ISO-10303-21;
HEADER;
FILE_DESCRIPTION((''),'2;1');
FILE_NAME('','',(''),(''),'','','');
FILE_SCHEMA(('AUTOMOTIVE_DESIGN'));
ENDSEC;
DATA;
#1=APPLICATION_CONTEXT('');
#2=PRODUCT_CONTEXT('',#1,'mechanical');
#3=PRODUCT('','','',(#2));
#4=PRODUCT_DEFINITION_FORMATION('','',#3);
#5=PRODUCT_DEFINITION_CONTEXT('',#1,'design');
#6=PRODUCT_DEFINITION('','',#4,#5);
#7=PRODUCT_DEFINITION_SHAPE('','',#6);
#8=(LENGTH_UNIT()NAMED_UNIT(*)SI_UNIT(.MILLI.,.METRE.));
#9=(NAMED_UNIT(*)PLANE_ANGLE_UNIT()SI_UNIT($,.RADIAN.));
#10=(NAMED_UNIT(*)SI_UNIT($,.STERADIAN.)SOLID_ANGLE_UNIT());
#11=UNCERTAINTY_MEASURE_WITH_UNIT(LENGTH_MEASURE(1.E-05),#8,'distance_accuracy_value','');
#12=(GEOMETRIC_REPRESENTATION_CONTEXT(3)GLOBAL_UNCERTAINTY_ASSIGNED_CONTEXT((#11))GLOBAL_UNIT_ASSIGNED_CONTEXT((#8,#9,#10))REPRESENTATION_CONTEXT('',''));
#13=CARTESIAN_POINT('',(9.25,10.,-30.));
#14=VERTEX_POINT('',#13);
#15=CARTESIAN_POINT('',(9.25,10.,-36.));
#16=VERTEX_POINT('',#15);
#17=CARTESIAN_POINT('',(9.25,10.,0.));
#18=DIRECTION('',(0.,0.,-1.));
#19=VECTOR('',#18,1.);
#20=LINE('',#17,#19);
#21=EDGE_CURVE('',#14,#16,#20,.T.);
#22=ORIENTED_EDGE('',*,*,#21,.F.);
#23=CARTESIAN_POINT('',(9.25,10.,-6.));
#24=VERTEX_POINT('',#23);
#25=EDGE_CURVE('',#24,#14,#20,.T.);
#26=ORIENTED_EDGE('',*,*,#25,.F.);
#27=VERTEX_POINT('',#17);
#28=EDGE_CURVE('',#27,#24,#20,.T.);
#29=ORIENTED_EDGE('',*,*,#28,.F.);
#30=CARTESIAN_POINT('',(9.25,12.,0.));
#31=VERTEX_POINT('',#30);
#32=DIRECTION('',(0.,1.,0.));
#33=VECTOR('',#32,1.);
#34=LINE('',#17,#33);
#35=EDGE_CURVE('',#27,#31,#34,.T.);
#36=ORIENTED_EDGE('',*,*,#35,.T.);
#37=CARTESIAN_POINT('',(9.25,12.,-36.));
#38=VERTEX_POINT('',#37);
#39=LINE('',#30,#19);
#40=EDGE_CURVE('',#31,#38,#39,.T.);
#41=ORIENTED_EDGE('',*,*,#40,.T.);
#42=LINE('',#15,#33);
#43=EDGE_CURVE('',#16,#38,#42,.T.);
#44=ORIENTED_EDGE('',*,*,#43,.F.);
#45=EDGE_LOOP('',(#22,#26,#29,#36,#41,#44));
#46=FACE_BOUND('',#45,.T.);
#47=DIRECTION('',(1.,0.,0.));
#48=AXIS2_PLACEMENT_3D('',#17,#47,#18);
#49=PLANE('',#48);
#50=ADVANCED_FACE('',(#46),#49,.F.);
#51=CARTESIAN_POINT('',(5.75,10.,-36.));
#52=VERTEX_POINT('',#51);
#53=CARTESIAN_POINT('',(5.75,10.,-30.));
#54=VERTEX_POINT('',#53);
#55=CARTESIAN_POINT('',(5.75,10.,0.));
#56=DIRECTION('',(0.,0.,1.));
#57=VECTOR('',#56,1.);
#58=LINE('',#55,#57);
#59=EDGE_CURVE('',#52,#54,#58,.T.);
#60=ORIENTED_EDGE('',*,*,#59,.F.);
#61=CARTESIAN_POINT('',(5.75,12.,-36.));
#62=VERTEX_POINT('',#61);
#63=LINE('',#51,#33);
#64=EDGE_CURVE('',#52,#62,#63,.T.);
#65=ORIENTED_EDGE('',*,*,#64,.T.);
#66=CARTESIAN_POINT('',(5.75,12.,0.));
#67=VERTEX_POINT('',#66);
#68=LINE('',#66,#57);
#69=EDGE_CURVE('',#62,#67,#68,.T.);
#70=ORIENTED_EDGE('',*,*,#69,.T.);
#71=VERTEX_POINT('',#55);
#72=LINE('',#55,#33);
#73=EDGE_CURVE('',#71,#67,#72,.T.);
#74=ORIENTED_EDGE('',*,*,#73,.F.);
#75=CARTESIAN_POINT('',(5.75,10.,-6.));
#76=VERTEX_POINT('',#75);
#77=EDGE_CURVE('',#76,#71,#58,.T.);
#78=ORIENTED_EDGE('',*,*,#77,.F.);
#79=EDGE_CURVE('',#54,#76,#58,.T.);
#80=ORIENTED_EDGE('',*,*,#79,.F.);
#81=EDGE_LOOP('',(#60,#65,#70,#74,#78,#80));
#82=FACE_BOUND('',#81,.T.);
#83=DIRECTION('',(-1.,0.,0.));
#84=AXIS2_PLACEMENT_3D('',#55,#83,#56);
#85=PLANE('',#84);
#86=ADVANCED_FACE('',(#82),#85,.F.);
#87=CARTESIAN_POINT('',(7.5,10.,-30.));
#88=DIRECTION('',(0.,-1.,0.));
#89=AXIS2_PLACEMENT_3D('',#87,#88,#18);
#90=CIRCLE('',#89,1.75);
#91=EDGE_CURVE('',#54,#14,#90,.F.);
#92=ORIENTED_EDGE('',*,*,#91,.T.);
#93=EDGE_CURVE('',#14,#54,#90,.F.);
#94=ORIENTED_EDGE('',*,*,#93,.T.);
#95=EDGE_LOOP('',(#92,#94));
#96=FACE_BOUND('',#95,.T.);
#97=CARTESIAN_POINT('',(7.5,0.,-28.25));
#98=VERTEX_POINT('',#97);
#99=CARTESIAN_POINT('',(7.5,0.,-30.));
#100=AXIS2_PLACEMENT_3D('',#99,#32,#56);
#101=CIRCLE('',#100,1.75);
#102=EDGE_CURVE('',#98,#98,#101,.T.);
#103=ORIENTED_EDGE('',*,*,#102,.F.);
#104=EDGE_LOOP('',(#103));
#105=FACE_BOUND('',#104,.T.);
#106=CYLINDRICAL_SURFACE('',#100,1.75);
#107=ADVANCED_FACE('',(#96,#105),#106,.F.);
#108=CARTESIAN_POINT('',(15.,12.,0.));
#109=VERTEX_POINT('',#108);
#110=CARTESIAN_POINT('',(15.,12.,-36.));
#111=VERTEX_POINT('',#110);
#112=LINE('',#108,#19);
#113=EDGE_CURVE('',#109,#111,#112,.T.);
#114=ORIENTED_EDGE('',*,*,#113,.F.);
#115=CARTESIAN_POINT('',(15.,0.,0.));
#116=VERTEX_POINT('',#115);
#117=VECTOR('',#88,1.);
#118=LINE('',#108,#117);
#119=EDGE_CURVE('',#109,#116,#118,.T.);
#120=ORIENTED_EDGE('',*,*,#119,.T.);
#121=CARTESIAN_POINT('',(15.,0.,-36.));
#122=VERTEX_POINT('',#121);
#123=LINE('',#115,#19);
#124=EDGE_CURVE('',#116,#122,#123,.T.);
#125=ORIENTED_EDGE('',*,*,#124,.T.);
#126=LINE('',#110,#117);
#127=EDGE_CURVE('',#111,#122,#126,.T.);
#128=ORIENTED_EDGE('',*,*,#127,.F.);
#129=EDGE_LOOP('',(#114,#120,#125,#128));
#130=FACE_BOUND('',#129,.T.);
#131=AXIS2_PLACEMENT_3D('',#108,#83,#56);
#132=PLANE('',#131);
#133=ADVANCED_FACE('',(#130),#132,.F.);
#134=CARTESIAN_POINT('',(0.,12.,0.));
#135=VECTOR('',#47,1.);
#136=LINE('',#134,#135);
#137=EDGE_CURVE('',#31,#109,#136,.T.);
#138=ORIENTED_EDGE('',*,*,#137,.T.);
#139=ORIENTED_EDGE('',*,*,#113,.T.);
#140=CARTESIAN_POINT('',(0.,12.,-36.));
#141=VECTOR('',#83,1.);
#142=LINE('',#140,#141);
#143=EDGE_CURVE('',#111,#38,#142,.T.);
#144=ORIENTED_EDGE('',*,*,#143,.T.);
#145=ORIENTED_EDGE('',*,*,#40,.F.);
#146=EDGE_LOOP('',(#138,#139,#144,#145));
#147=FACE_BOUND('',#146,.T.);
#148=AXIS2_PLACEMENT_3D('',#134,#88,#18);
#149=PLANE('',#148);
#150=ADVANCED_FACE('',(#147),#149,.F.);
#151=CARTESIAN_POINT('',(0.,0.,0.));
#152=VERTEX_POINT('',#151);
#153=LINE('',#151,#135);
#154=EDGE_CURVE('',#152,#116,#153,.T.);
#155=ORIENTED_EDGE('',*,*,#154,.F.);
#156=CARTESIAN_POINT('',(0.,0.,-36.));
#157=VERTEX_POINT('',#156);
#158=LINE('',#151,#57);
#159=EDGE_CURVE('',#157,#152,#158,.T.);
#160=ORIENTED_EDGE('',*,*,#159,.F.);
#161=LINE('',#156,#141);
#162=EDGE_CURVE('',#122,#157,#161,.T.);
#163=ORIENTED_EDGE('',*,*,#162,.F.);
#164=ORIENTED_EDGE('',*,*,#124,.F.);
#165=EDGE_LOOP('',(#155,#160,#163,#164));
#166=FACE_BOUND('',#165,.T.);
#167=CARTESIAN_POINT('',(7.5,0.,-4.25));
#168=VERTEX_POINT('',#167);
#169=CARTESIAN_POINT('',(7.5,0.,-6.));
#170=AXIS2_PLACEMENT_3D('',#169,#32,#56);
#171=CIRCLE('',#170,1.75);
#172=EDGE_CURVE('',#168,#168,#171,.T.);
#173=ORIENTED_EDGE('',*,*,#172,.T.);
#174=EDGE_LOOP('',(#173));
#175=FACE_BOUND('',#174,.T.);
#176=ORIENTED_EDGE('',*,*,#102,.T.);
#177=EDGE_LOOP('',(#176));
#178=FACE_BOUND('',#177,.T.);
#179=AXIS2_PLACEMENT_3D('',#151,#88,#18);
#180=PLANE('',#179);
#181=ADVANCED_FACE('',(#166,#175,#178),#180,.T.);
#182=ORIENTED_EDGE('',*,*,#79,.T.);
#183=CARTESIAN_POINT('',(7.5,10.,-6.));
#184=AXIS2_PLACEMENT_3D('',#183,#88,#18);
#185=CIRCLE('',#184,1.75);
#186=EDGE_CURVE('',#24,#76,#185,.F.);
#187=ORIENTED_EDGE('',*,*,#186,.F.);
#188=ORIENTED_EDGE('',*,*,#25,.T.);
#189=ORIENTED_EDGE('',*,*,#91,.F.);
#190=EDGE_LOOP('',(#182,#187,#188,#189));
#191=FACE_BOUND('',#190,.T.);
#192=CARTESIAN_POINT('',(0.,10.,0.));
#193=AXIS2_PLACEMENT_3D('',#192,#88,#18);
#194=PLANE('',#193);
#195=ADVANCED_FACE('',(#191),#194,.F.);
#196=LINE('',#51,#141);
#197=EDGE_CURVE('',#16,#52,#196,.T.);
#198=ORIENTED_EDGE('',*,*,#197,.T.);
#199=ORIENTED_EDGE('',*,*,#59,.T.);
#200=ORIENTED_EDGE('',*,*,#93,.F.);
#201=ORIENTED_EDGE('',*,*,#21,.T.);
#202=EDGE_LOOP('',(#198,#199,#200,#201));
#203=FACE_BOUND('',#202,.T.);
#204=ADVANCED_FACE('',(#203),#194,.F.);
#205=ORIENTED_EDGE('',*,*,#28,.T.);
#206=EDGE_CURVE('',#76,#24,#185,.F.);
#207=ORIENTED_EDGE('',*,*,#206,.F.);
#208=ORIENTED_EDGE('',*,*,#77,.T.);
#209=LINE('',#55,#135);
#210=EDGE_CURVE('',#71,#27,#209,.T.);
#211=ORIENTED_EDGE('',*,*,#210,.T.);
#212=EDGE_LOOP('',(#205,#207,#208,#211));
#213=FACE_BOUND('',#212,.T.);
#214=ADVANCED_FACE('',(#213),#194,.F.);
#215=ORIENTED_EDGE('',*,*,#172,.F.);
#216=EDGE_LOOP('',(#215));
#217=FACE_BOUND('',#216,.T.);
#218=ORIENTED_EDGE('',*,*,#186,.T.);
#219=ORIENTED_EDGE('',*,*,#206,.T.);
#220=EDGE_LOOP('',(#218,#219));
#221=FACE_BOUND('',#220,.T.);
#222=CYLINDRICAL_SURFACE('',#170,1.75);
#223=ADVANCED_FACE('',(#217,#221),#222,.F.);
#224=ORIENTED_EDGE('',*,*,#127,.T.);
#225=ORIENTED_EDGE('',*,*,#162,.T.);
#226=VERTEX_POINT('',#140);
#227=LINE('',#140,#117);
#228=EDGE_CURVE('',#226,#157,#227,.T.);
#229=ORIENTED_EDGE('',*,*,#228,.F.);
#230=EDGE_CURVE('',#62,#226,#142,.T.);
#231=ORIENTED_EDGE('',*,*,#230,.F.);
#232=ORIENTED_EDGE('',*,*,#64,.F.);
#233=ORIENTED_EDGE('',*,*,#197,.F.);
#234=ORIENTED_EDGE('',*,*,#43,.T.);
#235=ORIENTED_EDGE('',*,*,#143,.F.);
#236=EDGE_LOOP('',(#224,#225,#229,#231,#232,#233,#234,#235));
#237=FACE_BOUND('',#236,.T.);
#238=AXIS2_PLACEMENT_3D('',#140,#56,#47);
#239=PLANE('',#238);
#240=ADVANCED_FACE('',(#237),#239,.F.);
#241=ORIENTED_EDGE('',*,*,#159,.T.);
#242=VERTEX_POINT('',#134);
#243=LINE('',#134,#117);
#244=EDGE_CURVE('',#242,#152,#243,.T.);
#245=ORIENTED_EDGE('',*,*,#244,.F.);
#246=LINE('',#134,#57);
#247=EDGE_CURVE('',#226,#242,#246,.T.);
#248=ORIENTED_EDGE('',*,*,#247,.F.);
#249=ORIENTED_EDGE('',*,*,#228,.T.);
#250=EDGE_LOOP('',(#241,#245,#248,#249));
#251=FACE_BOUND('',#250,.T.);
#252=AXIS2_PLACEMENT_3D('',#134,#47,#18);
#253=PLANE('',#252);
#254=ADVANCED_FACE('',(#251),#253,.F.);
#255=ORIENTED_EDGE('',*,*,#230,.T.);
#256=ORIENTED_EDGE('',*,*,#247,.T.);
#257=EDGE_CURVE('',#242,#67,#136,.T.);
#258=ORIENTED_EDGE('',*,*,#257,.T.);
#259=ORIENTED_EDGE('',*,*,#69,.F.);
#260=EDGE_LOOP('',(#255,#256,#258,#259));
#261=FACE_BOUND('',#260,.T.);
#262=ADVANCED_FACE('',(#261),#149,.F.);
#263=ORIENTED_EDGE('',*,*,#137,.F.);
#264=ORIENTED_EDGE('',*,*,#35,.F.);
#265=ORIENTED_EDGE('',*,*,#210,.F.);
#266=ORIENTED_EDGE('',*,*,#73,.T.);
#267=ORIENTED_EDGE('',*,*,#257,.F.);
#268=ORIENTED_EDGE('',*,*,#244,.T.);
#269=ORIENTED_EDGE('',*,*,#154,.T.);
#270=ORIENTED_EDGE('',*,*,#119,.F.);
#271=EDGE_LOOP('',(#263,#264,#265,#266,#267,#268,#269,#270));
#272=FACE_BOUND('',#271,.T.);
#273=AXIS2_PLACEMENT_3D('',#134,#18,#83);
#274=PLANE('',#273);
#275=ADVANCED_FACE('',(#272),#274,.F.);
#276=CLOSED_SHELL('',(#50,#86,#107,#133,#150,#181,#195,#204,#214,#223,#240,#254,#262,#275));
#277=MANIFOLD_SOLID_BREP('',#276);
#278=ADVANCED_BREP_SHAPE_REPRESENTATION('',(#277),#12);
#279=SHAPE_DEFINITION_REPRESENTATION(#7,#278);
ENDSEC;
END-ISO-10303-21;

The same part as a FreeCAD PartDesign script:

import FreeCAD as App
import Part
import Sketcher
from FreeCAD import Vector
Q = App.Units.Quantity

doc = App.newDocument("Part")
body = doc.addObject("PartDesign::Body", "Body")

sketch1 = body.newObject("Sketcher::SketchObject", "Sketch")
sketch1.AttachmentSupport = (doc.getObject("XZ_Plane"), [""])
sketch1.MapMode = "FlatFace"
sketch1.addGeometry([
    Part.LineSegment(Vector(0, -36, 0), Vector(0, 0, 0)),
    Part.LineSegment(Vector(0, 0, 0), Vector(15, 0, 0)),
    Part.LineSegment(Vector(15, 0, 0), Vector(15, -36, 0)),
    Part.LineSegment(Vector(15, -36, 0), Vector(0, -36, 0)),
], False)
sketch1.addConstraint([
    Sketcher.Constraint("Coincident", 0, 2, 1, 1),
    Sketcher.Constraint("Coincident", 1, 2, 2, 1),
    Sketcher.Constraint("Coincident", 2, 2, 3, 1),
    Sketcher.Constraint("Coincident", 3, 2, 0, 1),
    Sketcher.Constraint("Vertical", 0),
    Sketcher.Constraint("Horizontal", 1),
    Sketcher.Constraint("Vertical", 2),
    Sketcher.Constraint("Horizontal", 3),
    Sketcher.Constraint("Coincident", 0, 2, -1, 1),
    Sketcher.Constraint("DistanceX", 1, 1, 1, 2, Q("15 mm")),
    Sketcher.Constraint("DistanceY", 0, 1, 0, 2, Q("36 mm")),
])
pad1 = body.newObject("PartDesign::Pad", "Pad")
pad1.Profile = sketch1
pad1.Length = 12
pad1.Reversed = True

sketch2 = body.newObject("Sketcher::SketchObject", "Sketch001")
sketch2.AttachmentSupport = (doc.getObject("XZ_Plane"), [""])
sketch2.MapMode = "FlatFace"
sketch2.AttachmentOffset = App.Placement(Vector(0, 0, -12), App.Rotation())
sketch2.addGeometry([
    Part.Circle(Vector(7.5, -30, 0), Vector(0, 0, 1), 1.75),
    Part.Circle(Vector(7.5, -6, 0), Vector(0, 0, 1), 1.75),
], False)
sketch2.addConstraint([
    Sketcher.Constraint("Equal", 0, 1),
    Sketcher.Constraint("Vertical", 0, 3, 1, 3),
    Sketcher.Constraint("Diameter", 0, Q("3.5 mm")),
    Sketcher.Constraint("DistanceY", 0, 3, -1, 1, Q("30 mm")),
    Sketcher.Constraint("DistanceY", 1, 3, -1, 1, Q("6 mm")),
    Sketcher.Constraint("DistanceX", -1, 1, 0, 3, Q("7.5 mm")),
])
pocket1 = body.newObject("PartDesign::Pocket", "Pocket")
pocket1.Profile = sketch2
pocket1.Length = 12
pocket1.Reversed = True

sketch3 = body.newObject("Sketcher::SketchObject", "Sketch002")
sketch3.AttachmentSupport = (doc.getObject("XZ_Plane"), [""])
sketch3.MapMode = "FlatFace"
sketch3.AttachmentOffset = App.Placement(Vector(0, 0, -12), App.Rotation())
sketch3.addGeometry([
    Part.LineSegment(Vector(5.75, -36, 0), Vector(5.75, 0, 0)),
    Part.LineSegment(Vector(5.75, 0, 0), Vector(9.25, 0, 0)),
    Part.LineSegment(Vector(9.25, 0, 0), Vector(9.25, -36, 0)),
    Part.LineSegment(Vector(9.25, -36, 0), Vector(5.75, -36, 0)),
], False)
sketch3.addConstraint([
    Sketcher.Constraint("Coincident", 0, 2, 1, 1),
    Sketcher.Constraint("Coincident", 1, 2, 2, 1),
    Sketcher.Constraint("Coincident", 2, 2, 3, 1),
    Sketcher.Constraint("Coincident", 3, 2, 0, 1),
    Sketcher.Constraint("Vertical", 0),
    Sketcher.Constraint("Horizontal", 1),
    Sketcher.Constraint("Vertical", 2),
    Sketcher.Constraint("Horizontal", 3),
    Sketcher.Constraint("PointOnObject", 0, 2, -1),
    Sketcher.Constraint("DistanceY", 0, 1, 0, 2, Q("36 mm")),
    Sketcher.Constraint("DistanceX", 1, 1, 1, 2, Q("3.5 mm")),
    Sketcher.Constraint("DistanceX", -1, 1, 0, 2, Q("5.75 mm")),
])
pocket2 = body.newObject("PartDesign::Pocket", "Pocket001")
pocket2.Profile = sketch3
pocket2.Length = 2
pocket2.Reversed = True

doc.recompute()
